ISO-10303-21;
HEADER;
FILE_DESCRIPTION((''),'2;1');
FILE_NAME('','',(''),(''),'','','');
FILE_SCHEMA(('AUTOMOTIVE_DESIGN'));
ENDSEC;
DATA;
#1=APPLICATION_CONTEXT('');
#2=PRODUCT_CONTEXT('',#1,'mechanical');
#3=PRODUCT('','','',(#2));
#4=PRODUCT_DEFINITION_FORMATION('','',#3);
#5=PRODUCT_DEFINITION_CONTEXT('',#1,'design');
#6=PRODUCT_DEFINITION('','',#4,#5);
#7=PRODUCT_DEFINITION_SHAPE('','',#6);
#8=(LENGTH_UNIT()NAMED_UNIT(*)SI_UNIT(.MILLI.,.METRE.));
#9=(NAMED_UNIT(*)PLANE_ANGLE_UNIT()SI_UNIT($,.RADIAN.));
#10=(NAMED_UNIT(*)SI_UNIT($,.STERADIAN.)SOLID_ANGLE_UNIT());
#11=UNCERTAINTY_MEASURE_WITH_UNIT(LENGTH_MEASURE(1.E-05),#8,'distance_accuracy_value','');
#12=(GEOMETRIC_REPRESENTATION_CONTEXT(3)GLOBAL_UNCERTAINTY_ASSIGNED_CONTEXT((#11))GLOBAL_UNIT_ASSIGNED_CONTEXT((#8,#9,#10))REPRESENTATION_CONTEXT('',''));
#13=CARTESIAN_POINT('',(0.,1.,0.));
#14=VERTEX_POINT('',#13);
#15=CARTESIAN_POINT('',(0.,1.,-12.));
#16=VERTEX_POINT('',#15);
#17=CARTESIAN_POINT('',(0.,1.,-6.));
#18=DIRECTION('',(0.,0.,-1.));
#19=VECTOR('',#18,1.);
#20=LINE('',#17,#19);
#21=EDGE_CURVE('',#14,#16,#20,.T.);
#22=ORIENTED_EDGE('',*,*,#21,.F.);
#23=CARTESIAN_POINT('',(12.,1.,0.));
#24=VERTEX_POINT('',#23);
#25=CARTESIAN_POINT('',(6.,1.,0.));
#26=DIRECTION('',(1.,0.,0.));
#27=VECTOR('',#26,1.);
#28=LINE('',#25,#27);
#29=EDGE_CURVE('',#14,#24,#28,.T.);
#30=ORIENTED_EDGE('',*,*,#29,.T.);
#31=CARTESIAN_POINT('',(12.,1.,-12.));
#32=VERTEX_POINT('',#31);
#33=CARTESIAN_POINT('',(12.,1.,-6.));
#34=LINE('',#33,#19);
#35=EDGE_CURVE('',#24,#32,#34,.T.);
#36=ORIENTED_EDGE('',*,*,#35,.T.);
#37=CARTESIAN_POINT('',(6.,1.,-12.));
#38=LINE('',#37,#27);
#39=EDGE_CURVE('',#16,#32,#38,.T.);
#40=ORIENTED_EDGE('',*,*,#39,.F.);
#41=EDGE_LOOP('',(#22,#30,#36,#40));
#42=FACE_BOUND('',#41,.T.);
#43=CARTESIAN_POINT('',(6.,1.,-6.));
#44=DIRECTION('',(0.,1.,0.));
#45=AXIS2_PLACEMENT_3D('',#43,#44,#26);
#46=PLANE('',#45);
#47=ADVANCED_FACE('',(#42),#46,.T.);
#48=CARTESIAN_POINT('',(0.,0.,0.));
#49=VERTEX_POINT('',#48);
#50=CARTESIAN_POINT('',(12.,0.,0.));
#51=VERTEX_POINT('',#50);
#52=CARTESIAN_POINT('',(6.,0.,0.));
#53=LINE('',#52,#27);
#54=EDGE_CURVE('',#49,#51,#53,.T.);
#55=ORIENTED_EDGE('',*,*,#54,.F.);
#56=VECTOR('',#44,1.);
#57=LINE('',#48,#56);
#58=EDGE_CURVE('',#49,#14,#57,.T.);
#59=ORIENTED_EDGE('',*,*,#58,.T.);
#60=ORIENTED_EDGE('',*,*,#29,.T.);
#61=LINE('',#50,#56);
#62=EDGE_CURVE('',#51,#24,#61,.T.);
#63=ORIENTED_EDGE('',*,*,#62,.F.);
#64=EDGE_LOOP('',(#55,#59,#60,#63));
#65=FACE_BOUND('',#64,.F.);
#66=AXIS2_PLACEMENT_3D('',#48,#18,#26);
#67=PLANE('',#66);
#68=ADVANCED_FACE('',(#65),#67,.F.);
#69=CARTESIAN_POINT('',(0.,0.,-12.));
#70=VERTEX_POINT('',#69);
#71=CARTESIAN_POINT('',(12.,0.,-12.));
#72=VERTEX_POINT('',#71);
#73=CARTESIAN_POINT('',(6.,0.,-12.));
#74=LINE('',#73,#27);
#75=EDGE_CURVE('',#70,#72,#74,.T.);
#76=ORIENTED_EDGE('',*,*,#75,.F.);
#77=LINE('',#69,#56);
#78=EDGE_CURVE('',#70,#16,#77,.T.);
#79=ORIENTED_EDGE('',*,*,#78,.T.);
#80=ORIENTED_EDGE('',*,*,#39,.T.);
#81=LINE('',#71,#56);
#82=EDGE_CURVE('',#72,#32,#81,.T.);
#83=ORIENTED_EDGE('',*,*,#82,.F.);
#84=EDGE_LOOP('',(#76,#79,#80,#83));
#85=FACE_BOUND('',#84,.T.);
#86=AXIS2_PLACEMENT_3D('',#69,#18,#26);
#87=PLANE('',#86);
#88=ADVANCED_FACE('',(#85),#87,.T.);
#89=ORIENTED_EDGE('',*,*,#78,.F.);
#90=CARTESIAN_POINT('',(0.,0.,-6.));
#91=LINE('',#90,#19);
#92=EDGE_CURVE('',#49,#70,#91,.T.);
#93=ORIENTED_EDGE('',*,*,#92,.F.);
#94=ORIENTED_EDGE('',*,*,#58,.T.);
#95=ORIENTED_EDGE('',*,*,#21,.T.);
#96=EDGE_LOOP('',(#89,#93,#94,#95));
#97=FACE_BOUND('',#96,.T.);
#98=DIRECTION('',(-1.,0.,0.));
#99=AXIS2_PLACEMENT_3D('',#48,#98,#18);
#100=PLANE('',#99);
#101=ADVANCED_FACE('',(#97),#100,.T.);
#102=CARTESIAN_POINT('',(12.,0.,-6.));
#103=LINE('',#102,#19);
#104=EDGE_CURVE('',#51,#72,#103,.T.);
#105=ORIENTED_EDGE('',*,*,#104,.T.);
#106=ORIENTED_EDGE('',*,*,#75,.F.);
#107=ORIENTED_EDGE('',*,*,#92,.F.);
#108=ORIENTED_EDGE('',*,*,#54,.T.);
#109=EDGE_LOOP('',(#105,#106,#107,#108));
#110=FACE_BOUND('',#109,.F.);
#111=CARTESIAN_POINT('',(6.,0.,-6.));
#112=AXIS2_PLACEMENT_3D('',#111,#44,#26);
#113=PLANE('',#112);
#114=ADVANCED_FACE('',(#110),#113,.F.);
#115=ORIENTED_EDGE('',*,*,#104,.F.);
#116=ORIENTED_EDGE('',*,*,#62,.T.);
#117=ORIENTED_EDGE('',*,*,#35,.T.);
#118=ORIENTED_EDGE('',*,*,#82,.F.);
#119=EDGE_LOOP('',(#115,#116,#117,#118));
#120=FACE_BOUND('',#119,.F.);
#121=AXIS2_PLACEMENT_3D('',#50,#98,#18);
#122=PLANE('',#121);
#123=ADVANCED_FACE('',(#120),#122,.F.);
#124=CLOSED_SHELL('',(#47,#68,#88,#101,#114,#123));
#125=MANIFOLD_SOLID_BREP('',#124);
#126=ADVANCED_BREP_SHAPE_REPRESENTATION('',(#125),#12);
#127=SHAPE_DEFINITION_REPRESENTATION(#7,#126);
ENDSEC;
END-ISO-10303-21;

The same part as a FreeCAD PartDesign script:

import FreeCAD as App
import Part
import Sketcher


def add_polygon(sketch, points):
    """Adds a closed chain of lines whose ends are joined by coincident constraints."""
    first, n = sketch.GeometryCount, len(points)
    for a, b in zip(points, points[1:] + points[:1]):
        sketch.addGeometry(Part.LineSegment(App.Vector(*a, 0), App.Vector(*b, 0)), False)
    for i in range(n):
        sketch.addConstraint(Sketcher.Constraint("Coincident", first + i, 2, first + (i + 1) % n, 1))

doc = App.newDocument("Part")
body = doc.addObject("PartDesign::Body", "Body")

# Sketch on XZ plane
sketch1 = body.newObject("Sketcher::SketchObject", "Sketch")
sketch1.AttachmentSupport = (doc.getObject("XZ_Plane"), [""])
sketch1.MapMode = "FlatFace"
add_polygon(sketch1, [(0, -12), (0, 0), (12, 0), (12, -12)])  # lines 0-3
sketch1.addConstraint(Sketcher.Constraint("Vertical", 0))
sketch1.addConstraint(Sketcher.Constraint("Horizontal", 1))
sketch1.addConstraint(Sketcher.Constraint("Vertical", 2))
sketch1.addConstraint(Sketcher.Constraint("Horizontal", 3))
sketch1.addConstraint(Sketcher.Constraint("Coincident", 0, 2, -1, 1))
sketch1.addConstraint(Sketcher.Constraint("Equal", 3, 0))
sketch1.addConstraint(Sketcher.Constraint("DistanceX", 1, 1, 1, 2, 12.0))
pad1 = body.newObject("PartDesign::Pad", "Pad")
pad1.Profile = sketch1
pad1.Length = 1
pad1.Reversed = True

doc.recompute()
